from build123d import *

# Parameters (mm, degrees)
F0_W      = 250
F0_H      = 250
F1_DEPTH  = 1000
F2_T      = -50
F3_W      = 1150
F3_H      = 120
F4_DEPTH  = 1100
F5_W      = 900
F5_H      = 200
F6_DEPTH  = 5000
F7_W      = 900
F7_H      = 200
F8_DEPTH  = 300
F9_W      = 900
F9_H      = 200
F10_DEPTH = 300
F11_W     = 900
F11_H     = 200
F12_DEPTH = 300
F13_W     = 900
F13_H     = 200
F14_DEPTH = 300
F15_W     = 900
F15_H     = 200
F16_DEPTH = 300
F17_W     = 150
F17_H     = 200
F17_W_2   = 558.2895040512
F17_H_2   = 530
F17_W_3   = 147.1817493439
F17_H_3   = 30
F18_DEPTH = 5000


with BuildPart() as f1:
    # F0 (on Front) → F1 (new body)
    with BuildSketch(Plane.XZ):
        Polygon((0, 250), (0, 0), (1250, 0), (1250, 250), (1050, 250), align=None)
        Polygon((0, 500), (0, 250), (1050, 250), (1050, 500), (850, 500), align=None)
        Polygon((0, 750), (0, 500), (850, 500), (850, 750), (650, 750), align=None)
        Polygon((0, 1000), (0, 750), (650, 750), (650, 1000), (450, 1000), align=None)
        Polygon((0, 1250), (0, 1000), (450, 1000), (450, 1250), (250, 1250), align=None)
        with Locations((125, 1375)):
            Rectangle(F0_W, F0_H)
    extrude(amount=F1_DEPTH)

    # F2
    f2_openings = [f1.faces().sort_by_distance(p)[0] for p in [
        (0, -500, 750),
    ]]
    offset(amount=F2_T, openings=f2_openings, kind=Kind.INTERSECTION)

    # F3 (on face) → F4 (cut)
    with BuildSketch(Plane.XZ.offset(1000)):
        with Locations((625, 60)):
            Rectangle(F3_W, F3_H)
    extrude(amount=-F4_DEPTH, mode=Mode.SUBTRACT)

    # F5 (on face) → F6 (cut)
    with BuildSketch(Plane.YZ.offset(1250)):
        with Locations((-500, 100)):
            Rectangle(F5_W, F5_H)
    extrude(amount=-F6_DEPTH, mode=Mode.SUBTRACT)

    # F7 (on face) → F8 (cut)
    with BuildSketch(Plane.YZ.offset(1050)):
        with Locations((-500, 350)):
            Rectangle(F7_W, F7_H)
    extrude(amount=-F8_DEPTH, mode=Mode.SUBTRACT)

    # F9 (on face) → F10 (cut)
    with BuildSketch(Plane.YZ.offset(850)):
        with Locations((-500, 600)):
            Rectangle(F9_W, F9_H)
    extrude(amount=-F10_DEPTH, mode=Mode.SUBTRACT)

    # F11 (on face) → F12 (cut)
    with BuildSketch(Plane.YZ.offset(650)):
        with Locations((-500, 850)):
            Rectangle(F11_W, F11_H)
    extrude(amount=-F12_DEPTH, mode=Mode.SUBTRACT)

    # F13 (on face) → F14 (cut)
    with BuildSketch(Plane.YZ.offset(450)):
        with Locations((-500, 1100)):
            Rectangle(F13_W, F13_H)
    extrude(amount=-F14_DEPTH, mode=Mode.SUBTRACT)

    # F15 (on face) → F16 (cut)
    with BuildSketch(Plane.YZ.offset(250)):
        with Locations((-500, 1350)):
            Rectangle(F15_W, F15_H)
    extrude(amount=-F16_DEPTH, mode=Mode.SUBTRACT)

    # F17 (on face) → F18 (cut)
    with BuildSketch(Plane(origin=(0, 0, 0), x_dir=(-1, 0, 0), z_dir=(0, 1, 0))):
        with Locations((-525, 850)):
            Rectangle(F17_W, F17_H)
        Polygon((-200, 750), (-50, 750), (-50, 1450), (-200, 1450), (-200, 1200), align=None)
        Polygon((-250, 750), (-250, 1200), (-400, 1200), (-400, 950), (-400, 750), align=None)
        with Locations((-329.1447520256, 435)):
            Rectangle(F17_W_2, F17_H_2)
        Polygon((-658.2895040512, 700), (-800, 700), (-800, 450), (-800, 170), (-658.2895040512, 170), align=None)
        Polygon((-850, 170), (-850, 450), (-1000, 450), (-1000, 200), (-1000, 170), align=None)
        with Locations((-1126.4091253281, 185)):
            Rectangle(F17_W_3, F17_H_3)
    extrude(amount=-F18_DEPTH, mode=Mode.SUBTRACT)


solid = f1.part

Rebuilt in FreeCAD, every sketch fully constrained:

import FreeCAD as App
import Part
import Sketcher

V = App.Vector


def faces_at(feature, points):
    """Names of the faces that lie closest to the given points."""
    faces = feature.Shape.Faces
    near = lambda p: min(range(len(faces)), key=lambda i: faces[i].distToShape(Part.Vertex(*p))[0])
    return sorted({f"Face{near(p) + 1}" for p in points})

doc = App.newDocument("Part")
body = doc.addObject("PartDesign::Body", "Body")

sketch1 = body.newObject("Sketcher::SketchObject", "Sketch")
sketch1.AttachmentSupport = (doc.getObject("XZ_Plane"), [""])
sketch1.MapMode = "FlatFace"
sketch1.addGeometry(Part.LineSegment(V(0, 0, 0), V(1250, 0, 0)), False)
sketch1.addGeometry(Part.LineSegment(V(1250, 0, 0), V(1250, 250, 0)), False)
sketch1.addGeometry(Part.LineSegment(V(1250, 250, 0), V(1050, 250, 0)), False)
sketch1.addGeometry(Part.LineSegment(V(1050, 250, 0), V(1050, 500, 0)), False)
sketch1.addGeometry(Part.LineSegment(V(1050, 500, 0), V(850, 500, 0)), False)
sketch1.addGeometry(Part.LineSegment(V(850, 500, 0), V(850, 750, 0)), False)
sketch1.addGeometry(Part.LineSegment(V(850, 750, 0), V(650, 750, 0)), False)
sketch1.addGeometry(Part.LineSegment(V(650, 750, 0), V(650, 1000, 0)), False)
sketch1.addGeometry(Part.LineSegment(V(650, 1000, 0), V(450, 1000, 0)), False)
sketch1.addGeometry(Part.LineSegment(V(450, 1000, 0), V(450, 1250, 0)), False)
sketch1.addGeometry(Part.LineSegment(V(450, 1250, 0), V(250, 1250, 0)), False)
sketch1.addGeometry(Part.LineSegment(V(250, 1250, 0), V(250, 1500, 0)), False)
sketch1.addGeometry(Part.LineSegment(V(250, 1500, 0), V(0, 1500, 0)), False)
sketch1.addGeometry(Part.LineSegment(V(0, 1500, 0), V(0, 0, 0)), False)
sketch1.addConstraint(Sketcher.Constraint("Coincident", 0, 2, 1, 1))
sketch1.addConstraint(Sketcher.Constraint("Coincident", 1, 2, 2, 1))
sketch1.addConstraint(Sketcher.Constraint("Coincident", 2, 2, 3, 1))
sketch1.addConstraint(Sketcher.Constraint("Coincident", 3, 2, 4, 1))
sketch1.addConstraint(Sketcher.Constraint("Coincident", 4, 2, 5, 1))
sketch1.addConstraint(Sketcher.Constraint("Coincident", 5, 2, 6, 1))
sketch1.addConstraint(Sketcher.Constraint("Coincident", 6, 2, 7, 1))
sketch1.addConstraint(Sketcher.Constraint("Coincident", 7, 2, 8, 1))
sketch1.addConstraint(Sketcher.Constraint("Coincident", 8, 2, 9, 1))
sketch1.addConstraint(Sketcher.Constraint("Coincident", 9, 2, 10, 1))
sketch1.addConstraint(Sketcher.Constraint("Coincident", 10, 2, 11, 1))
sketch1.addConstraint(Sketcher.Constraint("Coincident", 11, 2, 12, 1))
sketch1.addConstraint(Sketcher.Constraint("Coincident", 12, 2, 13, 1))
sketch1.addConstraint(Sketcher.Constraint("Coincident", 13, 2, 0, 1))
sketch1.addConstraint(Sketcher.Constraint("Horizontal", 0))
sketch1.addConstraint(Sketcher.Constraint("Vertical", 1))
sketch1.addConstraint(Sketcher.Constraint("Horizontal", 2))
sketch1.addConstraint(Sketcher.Constraint("Vertical", 3))
sketch1.addConstraint(Sketcher.Constraint("Horizontal", 4))
sketch1.addConstraint(Sketcher.Constraint("Vertical", 5))
sketch1.addConstraint(Sketcher.Constraint("Horizontal", 6))
sketch1.addConstraint(Sketcher.Constraint("Vertical", 7))
sketch1.addConstraint(Sketcher.Constraint("Horizontal", 8))
sketch1.addConstraint(Sketcher.Constraint("Vertical", 9))
sketch1.addConstraint(Sketcher.Constraint("Horizontal", 10))
sketch1.addConstraint(Sketcher.Constraint("Vertical", 11))
sketch1.addConstraint(Sketcher.Constraint("Horizontal", 12))
sketch1.addConstraint(Sketcher.Constraint("Vertical", 13))
sketch1.addConstraint(Sketcher.Constraint("Coincident", 13, 2, -1, 1))
sketch1.addConstraint(Sketcher.Constraint("Equal", 2, 4))
sketch1.addConstraint(Sketcher.Constraint("Equal", 4, 6))
sketch1.addConstraint(Sketcher.Constraint("Equal", 6, 8))
sketch1.addConstraint(Sketcher.Constraint("Equal", 8, 10))
sketch1.addConstraint(Sketcher.Constraint("Equal", 12, 1))
sketch1.addConstraint(Sketcher.Constraint("Equal", 1, 3))
sketch1.addConstraint(Sketcher.Constraint("Equal", 3, 5))
sketch1.addConstraint(Sketcher.Constraint("Equal", 5, 7))
sketch1.addConstraint(Sketcher.Constraint("Equal", 7, 9))
sketch1.addConstraint(Sketcher.Constraint("Equal", 9, 11))
sketch1.addConstraint(Sketcher.Constraint("DistanceX", 0, 1, 0, 2, 1250.0))
sketch1.addConstraint(Sketcher.Constraint("DistanceX", 2, 2, 2, 1, 200.0))
pad1 = body.newObject("PartDesign::Pad", "Pad")
pad1.Profile = sketch1
pad1.Length = 1000
doc.recompute()

thickness = body.newObject("PartDesign::Thickness", "Thickness")
thickness.Base = (pad1, faces_at(pad1, [(0, -500, 750)]))
thickness.Value = 50
thickness.Reversed = True
thickness.Join = "Intersection"

sketch2 = body.newObject("Sketcher::SketchObject", "Sketch001")
sketch2.AttachmentSupport = (doc.getObject("XZ_Plane"), [""])
sketch2.MapMode = "FlatFace"
sketch2.AttachmentOffset = App.Placement(V(0, 0, 1000), App.Rotation())
sketch2.addGeometry(Part.LineSegment(V(50, 120, 0), V(50, 0, 0)), False)
sketch2.addGeometry(Part.LineSegment(V(50, 0, 0), V(1200, 0, 0)), False)
sketch2.addGeometry(Part.LineSegment(V(1200, 0, 0), V(1200, 120, 0)), False)
sketch2.addGeometry(Part.LineSegment(V(1200, 120, 0), V(50, 120, 0)), False)
sketch2.addConstraint(Sketcher.Constraint("Coincident", 0, 2, 1, 1))
sketch2.addConstraint(Sketcher.Constraint("Coincident", 1, 2, 2, 1))
sketch2.addConstraint(Sketcher.Constraint("Coincident", 2, 2, 3, 1))
sketch2.addConstraint(Sketcher.Constraint("Coincident", 3, 2, 0, 1))
sketch2.addConstraint(Sketcher.Constraint("Vertical", 0))
sketch2.addConstraint(Sketcher.Constraint("Horizontal", 1))
sketch2.addConstraint(Sketcher.Constraint("Vertical", 2))
sketch2.addConstraint(Sketcher.Constraint("Horizontal", 3))
sketch2.addConstraint(Sketcher.Constraint("PointOnObject", 0, 2, -1))
sketch2.addConstraint(Sketcher.Constraint("DistanceX", 1, 1, 1, 2, 1150.0))
sketch2.addConstraint(Sketcher.Constraint("DistanceY", 0, 2, 0, 1, 120.0))
sketch2.addConstraint(Sketcher.Constraint("DistanceX", -1, 1, 0, 2, 50.0))
pocket1 = body.newObject("PartDesign::Pocket", "Pocket")
pocket1.Profile = sketch2
pocket1.Length = 1100

sketch3 = body.newObject("Sketcher::SketchObject", "Sketch002")
sketch3.AttachmentSupport = (doc.getObject("YZ_Plane"), [""])
sketch3.MapMode = "FlatFace"
sketch3.AttachmentOffset = App.Placement(V(0, 0, 1250), App.Rotation())
sketch3.addGeometry(Part.LineSegment(V(-950, 200, 0), V(-950, 0, 0)), False)
sketch3.addGeometry(Part.LineSegment(V(-950, 0, 0), V(-50, 0, 0)), False)
sketch3.addGeometry(Part.LineSegment(V(-50, 0, 0), V(-50, 200, 0)), False)
sketch3.addGeometry(Part.LineSegment(V(-50, 200, 0), V(-950, 200, 0)), False)
sketch3.addConstraint(Sketcher.Constraint("Coincident", 0, 2, 1, 1))
sketch3.addConstraint(Sketcher.Constraint("Coincident", 1, 2, 2, 1))
sketch3.addConstraint(Sketcher.Constraint("Coincident", 2, 2, 3, 1))
sketch3.addConstraint(Sketcher.Constraint("Coincident", 3, 2, 0, 1))
sketch3.addConstraint(Sketcher.Constraint("Vertical", 0))
sketch3.addConstraint(Sketcher.Constraint("Horizontal", 1))
sketch3.addConstraint(Sketcher.Constraint("Vertical", 2))
sketch3.addConstraint(Sketcher.Constraint("Horizontal", 3))
sketch3.addConstraint(Sketcher.Constraint("PointOnObject", 0, 2, -1))
sketch3.addConstraint(Sketcher.Constraint("DistanceX", 1, 1, 1, 2, 900.0))
sketch3.addConstraint(Sketcher.Constraint("DistanceY", 0, 2, 0, 1, 200.0))
sketch3.addConstraint(Sketcher.Constraint("DistanceX", 0, 2, -1, 1, 950.0))
pocket2 = body.newObject("PartDesign::Pocket", "Pocket001")
pocket2.Profile = sketch3
pocket2.Length = 5000

sketch4 = body.newObject("Sketcher::SketchObject", "Sketch003")
sketch4.AttachmentSupport = (doc.getObject("YZ_Plane"), [""])
sketch4.MapMode = "FlatFace"
sketch4.AttachmentOffset = App.Placement(V(0, 0, 1050), App.Rotation())
sketch4.addGeometry(Part.LineSegment(V(-950, 450, 0), V(-950, 250, 0)), False)
sketch4.addGeometry(Part.LineSegment(V(-950, 250, 0), V(-50, 250, 0)), False)
sketch4.addGeometry(Part.LineSegment(V(-50, 250, 0), V(-50, 450, 0)), False)
sketch4.addGeometry(Part.LineSegment(V(-50, 450, 0), V(-950, 450, 0)), False)
sketch4.addConstraint(Sketcher.Constraint("Coincident", 0, 2, 1, 1))
sketch4.addConstraint(Sketcher.Constraint("Coincident", 1, 2, 2, 1))
sketch4.addConstraint(Sketcher.Constraint("Coincident", 2, 2, 3, 1))
sketch4.addConstraint(Sketcher.Constraint("Coincident", 3, 2, 0, 1))
sketch4.addConstraint(Sketcher.Constraint("Vertical", 0))
sketch4.addConstraint(Sketcher.Constraint("Horizontal", 1))
sketch4.addConstraint(Sketcher.Constraint("Vertical", 2))
sketch4.addConstraint(Sketcher.Constraint("Horizontal", 3))
sketch4.addConstraint(Sketcher.Constraint("DistanceX", 1, 1, 1, 2, 900.0))
sketch4.addConstraint(Sketcher.Constraint("DistanceY", 0, 2, 0, 1, 200.0))
sketch4.addConstraint(Sketcher.Constraint("DistanceX", 0, 2, -1, 1, 950.0))
sketch4.addConstraint(Sketcher.Constraint("DistanceY", -1, 1, 0, 2, 250.0))
pocket3 = body.newObject("PartDesign::Pocket", "Pocket002")
pocket3.Profile = sketch4
pocket3.Length = 300

sketch5 = body.newObject("Sketcher::SketchObject", "Sketch004")
sketch5.AttachmentSupport = (doc.getObject("YZ_Plane"), [""])
sketch5.MapMode = "FlatFace"
sketch5.AttachmentOffset = App.Placement(V(0, 0, 850), App.Rotation())
sketch5.addGeometry(Part.LineSegment(V(-950, 700, 0), V(-950, 500, 0)), False)
sketch5.addGeometry(Part.LineSegment(V(-950, 500, 0), V(-50, 500, 0)), False)
sketch5.addGeometry(Part.LineSegment(V(-50, 500, 0), V(-50, 700, 0)), False)
sketch5.addGeometry(Part.LineSegment(V(-50, 700, 0), V(-950, 700, 0)), False)
sketch5.addConstraint(Sketcher.Constraint("Coincident", 0, 2, 1, 1))
sketch5.addConstraint(Sketcher.Constraint("Coincident", 1, 2, 2, 1))
sketch5.addConstraint(Sketcher.Constraint("Coincident", 2, 2, 3, 1))
sketch5.addConstraint(Sketcher.Constraint("Coincident", 3, 2, 0, 1))
sketch5.addConstraint(Sketcher.Constraint("Vertical", 0))
sketch5.addConstraint(Sketcher.Constraint("Horizontal", 1))
sketch5.addConstraint(Sketcher.Constraint("Vertical", 2))
sketch5.addConstraint(Sketcher.Constraint("Horizontal", 3))
sketch5.addConstraint(Sketcher.Constraint("DistanceX", 1, 1, 1, 2, 900.0))
sketch5.addConstraint(Sketcher.Constraint("DistanceY", 0, 2, 0, 1, 200.0))
sketch5.addConstraint(Sketcher.Constraint("DistanceX", 0, 2, -1, 1, 950.0))
sketch5.addConstraint(Sketcher.Constraint("DistanceY", -1, 1, 0, 2, 500.0))
pocket4 = body.newObject("PartDesign::Pocket", "Pocket003")
pocket4.Profile = sketch5
pocket4.Length = 300

sketch6 = body.newObject("Sketcher::SketchObject", "Sketch005")
sketch6.AttachmentSupport = (doc.getObject("YZ_Plane"), [""])
sketch6.MapMode = "FlatFace"
sketch6.AttachmentOffset = App.Placement(V(0, 0, 650), App.Rotation())
sketch6.addGeometry(Part.LineSegment(V(-950, 950, 0), V(-950, 750, 0)), False)
sketch6.addGeometry(Part.LineSegment(V(-950, 750, 0), V(-50, 750, 0)), False)
sketch6.addGeometry(Part.LineSegment(V(-50, 750, 0), V(-50, 950, 0)), False)
sketch6.addGeometry(Part.LineSegment(V(-50, 950, 0), V(-950, 950, 0)), False)
sketch6.addConstraint(Sketcher.Constraint("Coincident", 0, 2, 1, 1))
sketch6.addConstraint(Sketcher.Constraint("Coincident", 1, 2, 2, 1))
sketch6.addConstraint(Sketcher.Constraint("Coincident", 2, 2, 3, 1))
sketch6.addConstraint(Sketcher.Constraint("Coincident", 3, 2, 0, 1))
sketch6.addConstraint(Sketcher.Constraint("Vertical", 0))
sketch6.addConstraint(Sketcher.Constraint("Horizontal", 1))
sketch6.addConstraint(Sketcher.Constraint("Vertical", 2))
sketch6.addConstraint(Sketcher.Constraint("Horizontal", 3))
sketch6.addConstraint(Sketcher.Constraint("DistanceX", 1, 1, 1, 2, 900.0))
sketch6.addConstraint(Sketcher.Constraint("DistanceY", 0, 2, 0, 1, 200.0))
sketch6.addConstraint(Sketcher.Constraint("DistanceX", 0, 2, -1, 1, 950.0))
sketch6.addConstraint(Sketcher.Constraint("DistanceY", -1, 1, 0, 2, 750.0))
pocket5 = body.newObject("PartDesign::Pocket", "Pocket004")
pocket5.Profile = sketch6
pocket5.Length = 300

sketch7 = body.newObject("Sketcher::SketchObject", "Sketch006")
sketch7.AttachmentSupport = (doc.getObject("YZ_Plane"), [""])
sketch7.MapMode = "FlatFace"
sketch7.AttachmentOffset = App.Placement(V(0, 0, 450), App.Rotation())
sketch7.addGeometry(Part.LineSegment(V(-950, 1200, 0), V(-950, 1000, 0)), False)
sketch7.addGeometry(Part.LineSegment(V(-950, 1000, 0), V(-50, 1000, 0)), False)
sketch7.addGeometry(Part.LineSegment(V(-50, 1000, 0), V(-50, 1200, 0)), False)
sketch7.addGeometry(Part.LineSegment(V(-50, 1200, 0), V(-950, 1200, 0)), False)
sketch7.addConstraint(Sketcher.Constraint("Coincident", 0, 2, 1, 1))
sketch7.addConstraint(Sketcher.Constraint("Coincident", 1, 2, 2, 1))
sketch7.addConstraint(Sketcher.Constraint("Coincident", 2, 2, 3, 1))
sketch7.addConstraint(Sketcher.Constraint("Coincident", 3, 2, 0, 1))
sketch7.addConstraint(Sketcher.Constraint("Vertical", 0))
sketch7.addConstraint(Sketcher.Constraint("Horizontal", 1))
sketch7.addConstraint(Sketcher.Constraint("Vertical", 2))
sketch7.addConstraint(Sketcher.Constraint("Horizontal", 3))
sketch7.addConstraint(Sketcher.Constraint("DistanceX", 1, 1, 1, 2, 900.0))
sketch7.addConstraint(Sketcher.Constraint("DistanceY", 0, 2, 0, 1, 200.0))
sketch7.addConstraint(Sketcher.Constraint("DistanceX", 0, 2, -1, 1, 950.0))
sketch7.addConstraint(Sketcher.Constraint("DistanceY", -1, 1, 0, 2, 1000.0))
pocket6 = body.newObject("PartDesign::Pocket", "Pocket005")
pocket6.Profile = sketch7
pocket6.Length = 300

sketch8 = body.newObject("Sketcher::SketchObject", "Sketch007")
sketch8.AttachmentSupport = (doc.getObject("YZ_Plane"), [""])
sketch8.MapMode = "FlatFace"
sketch8.AttachmentOffset = App.Placement(V(0, 0, 250), App.Rotation())
sketch8.addGeometry(Part.LineSegment(V(-950, 1450, 0), V(-950, 1250, 0)), False)
sketch8.addGeometry(Part.LineSegment(V(-950, 1250, 0), V(-50, 1250, 0)), False)
sketch8.addGeometry(Part.LineSegment(V(-50, 1250, 0), V(-50, 1450, 0)), False)
sketch8.addGeometry(Part.LineSegment(V(-50, 1450, 0), V(-950, 1450, 0)), False)
sketch8.addConstraint(Sketcher.Constraint("Coincident", 0, 2, 1, 1))
sketch8.addConstraint(Sketcher.Constraint("Coincident", 1, 2, 2, 1))
sketch8.addConstraint(Sketcher.Constraint("Coincident", 2, 2, 3, 1))
sketch8.addConstraint(Sketcher.Constraint("Coincident", 3, 2, 0, 1))
sketch8.addConstraint(Sketcher.Constraint("Vertical", 0))
sketch8.addConstraint(Sketcher.Constraint("Horizontal", 1))
sketch8.addConstraint(Sketcher.Constraint("Vertical", 2))
sketch8.addConstraint(Sketcher.Constraint("Horizontal", 3))
sketch8.addConstraint(Sketcher.Constraint("DistanceX", 1, 1, 1, 2, 900.0))
sketch8.addConstraint(Sketcher.Constraint("DistanceY", 0, 2, 0, 1, 200.0))
sketch8.addConstraint(Sketcher.Constraint("DistanceX", 0, 2, -1, 1, 950.0))
sketch8.addConstraint(Sketcher.Constraint("DistanceY", -1, 1, 0, 2, 1250.0))
pocket7 = body.newObject("PartDesign::Pocket", "Pocket006")
pocket7.Profile = sketch8
pocket7.Length = 300

sketch9 = body.newObject("Sketcher::SketchObject", "Sketch008")
sketch9.AttachmentSupport = (doc.getObject("XZ_Plane"), [""])
sketch9.MapMode = "FlatFace"
sketch9.addGeometry(Part.LineSegment(V(600, 950, 0), V(600, 750, 0)), False)
sketch9.addGeometry(Part.LineSegment(V(600, 750, 0), V(450, 750, 0)), False)
sketch9.addGeometry(Part.LineSegment(V(450, 750, 0), V(450, 950, 0)), False)
sketch9.addGeometry(Part.LineSegment(V(450, 950, 0), V(600, 950, 0)), False)
sketch9.addGeometry(Part.LineSegment(V(200, 750, 0), V(50, 750, 0)), False)
sketch9.addGeometry(Part.LineSegment(V(50, 750, 0), V(50, 1450, 0)), False)
sketch9.addGeometry(Part.LineSegment(V(50, 1450, 0), V(200, 1450, 0)), False)
sketch9.addGeometry(Part.LineSegment(V(200, 1450, 0), V(200, 750, 0)), False)
sketch9.addGeometry(Part.LineSegment(V(250, 750, 0), V(250, 1200, 0)), False)
sketch9.addGeometry(Part.LineSegment(V(250, 1200, 0), V(400, 1200, 0)), False)
sketch9.addGeometry(Part.LineSegment(V(400, 1200, 0), V(400, 750, 0)), False)
sketch9.addGeometry(Part.LineSegment(V(400, 750, 0), V(250, 750, 0)), False)
sketch9.addGeometry(Part.LineSegment(V(608.289504, 700, 0), V(608.289504, 170, 0)), False)
sketch9.addGeometry(Part.LineSegment(V(608.289504, 170, 0), V(50, 170, 0)), False)
sketch9.addGeometry(Part.LineSegment(V(50, 170, 0), V(50, 700, 0)), False)
sketch9.addGeometry(Part.LineSegment(V(50, 700, 0), V(608.289504, 700, 0)), False)
sketch9.addGeometry(Part.LineSegment(V(658.289504, 700, 0), V(800, 700, 0)), False)
sketch9.addGeometry(Part.LineSegment(V(800, 700, 0), V(800, 170, 0)), False)
sketch9.addGeometry(Part.LineSegment(V(800, 170, 0), V(658.289504, 170, 0)), False)
sketch9.addGeometry(Part.LineSegment(V(658.289504, 170, 0), V(658.289504, 700, 0)), False)
sketch9.addGeometry(Part.LineSegment(V(850, 170, 0), V(850, 450, 0)), False)
sketch9.addGeometry(Part.LineSegment(V(850, 450, 0), V(1000, 450, 0)), False)
sketch9.addGeometry(Part.LineSegment(V(1000, 450, 0), V(1000, 170, 0)), False)
sketch9.addGeometry(Part.LineSegment(V(1000, 170, 0), V(850, 170, 0)), False)
sketch9.addGeometry(Part.LineSegment(V(1200, 200, 0), V(1200, 170, 0)), False)
sketch9.addGeometry(Part.LineSegment(V(1200, 170, 0), V(1052.818251, 170, 0)), False)
sketch9.addGeometry(Part.LineSegment(V(1052.818251, 170, 0), V(1052.818251, 200, 0)), False)
sketch9.addGeometry(Part.LineSegment(V(1052.818251, 200, 0), V(1200, 200, 0)), False)
sketch9.addConstraint(Sketcher.Constraint("Coincident", 0, 2, 1, 1))
sketch9.addConstraint(Sketcher.Constraint("Coincident", 1, 2, 2, 1))
sketch9.addConstraint(Sketcher.Constraint("Coincident", 2, 2, 3, 1))
sketch9.addConstraint(Sketcher.Constraint("Coincident", 3, 2, 0, 1))
sketch9.addConstraint(Sketcher.Constraint("Coincident", 4, 2, 5, 1))
sketch9.addConstraint(Sketcher.Constraint("Coincident", 5, 2, 6, 1))
sketch9.addConstraint(Sketcher.Constraint("Coincident", 6, 2, 7, 1))
sketch9.addConstraint(Sketcher.Constraint("Coincident", 7, 2, 4, 1))
sketch9.addConstraint(Sketcher.Constraint("Coincident", 8, 2, 9, 1))
sketch9.addConstraint(Sketcher.Constraint("Coincident", 9, 2, 10, 1))
sketch9.addConstraint(Sketcher.Constraint("Coincident", 10, 2, 11, 1))
sketch9.addConstraint(Sketcher.Constraint("Coincident", 11, 2, 8, 1))
sketch9.addConstraint(Sketcher.Constraint("Coincident", 12, 2, 13, 1))
sketch9.addConstraint(Sketcher.Constraint("Coincident", 13, 2, 14, 1))
sketch9.addConstraint(Sketcher.Constraint("Coincident", 14, 2, 15, 1))
sketch9.addConstraint(Sketcher.Constraint("Coincident", 15, 2, 12, 1))
sketch9.addConstraint(Sketcher.Constraint("Coincident", 16, 2, 17, 1))
sketch9.addConstraint(Sketcher.Constraint("Coincident", 17, 2, 18, 1))
sketch9.addConstraint(Sketcher.Constraint("Coincident", 18, 2, 19, 1))
sketch9.addConstraint(Sketcher.Constraint("Coincident", 19, 2, 16, 1))
sketch9.addConstraint(Sketcher.Constraint("Coincident", 20, 2, 21, 1))
sketch9.addConstraint(Sketcher.Constraint("Coincident", 21, 2, 22, 1))
sketch9.addConstraint(Sketcher.Constraint("Coincident", 22, 2, 23, 1))
sketch9.addConstraint(Sketcher.Constraint("Coincident", 23, 2, 20, 1))
sketch9.addConstraint(Sketcher.Constraint("Coincident", 24, 2, 25, 1))
sketch9.addConstraint(Sketcher.Constraint("Coincident", 25, 2, 26, 1))
sketch9.addConstraint(Sketcher.Constraint("Coincident", 26, 2, 27, 1))
sketch9.addConstraint(Sketcher.Constraint("Coincident", 27, 2, 24, 1))
sketch9.addConstraint(Sketcher.Constraint("Vertical", 0))
sketch9.addConstraint(Sketcher.Constraint("Horizontal", 1))
sketch9.addConstraint(Sketcher.Constraint("Vertical", 2))
sketch9.addConstraint(Sketcher.Constraint("Horizontal", 3))
sketch9.addConstraint(Sketcher.Constraint("Horizontal", 4))
sketch9.addConstraint(Sketcher.Constraint("Vertical", 5))
sketch9.addConstraint(Sketcher.Constraint("Horizontal", 6))
sketch9.addConstraint(Sketcher.Constraint("Vertical", 7))
sketch9.addConstraint(Sketcher.Constraint("Vertical", 8))
sketch9.addConstraint(Sketcher.Constraint("Horizontal", 9))
sketch9.addConstraint(Sketcher.Constraint("Vertical", 10))
sketch9.addConstraint(Sketcher.Constraint("Horizontal", 11))
sketch9.addConstraint(Sketcher.Constraint("Vertical", 12))
sketch9.addConstraint(Sketcher.Constraint("Horizontal", 13))
sketch9.addConstraint(Sketcher.Constraint("Vertical", 14))
sketch9.addConstraint(Sketcher.Constraint("Horizontal", 15))
sketch9.addConstraint(Sketcher.Constraint("Horizontal", 16))
sketch9.addConstraint(Sketcher.Constraint("Vertical", 17))
sketch9.addConstraint(Sketcher.Constraint("Horizontal", 18))
sketch9.addConstraint(Sketcher.Constraint("Vertical", 19))
sketch9.addConstraint(Sketcher.Constraint("Vertical", 20))
sketch9.addConstraint(Sketcher.Constraint("Horizontal", 21))
sketch9.addConstraint(Sketcher.Constraint("Vertical", 22))
sketch9.addConstraint(Sketcher.Constraint("Horizontal", 23))
sketch9.addConstraint(Sketcher.Constraint("Vertical", 24))
sketch9.addConstraint(Sketcher.Constraint("Horizontal", 25))
sketch9.addConstraint(Sketcher.Constraint("Vertical", 26))
sketch9.addConstraint(Sketcher.Constraint("Horizontal", 27))
sketch9.addConstraint(Sketcher.Constraint("Horizontal", 1, 2, 4, 2))
sketch9.addConstraint(Sketcher.Constraint("Horizontal", 7, 2, 10, 2))
sketch9.addConstraint(Sketcher.Constraint("Horizontal", 15, 2, 16, 2))
sketch9.addConstraint(Sketcher.Constraint("Horizontal", 13, 2, 17, 2))
sketch9.addConstraint(Sketcher.Constraint("Horizontal", 18, 2, 22, 2))
sketch9.addConstraint(Sketcher.Constraint("Horizontal", 23, 2, 24, 2))
sketch9.addConstraint(Sketcher.Constraint("Vertical", 5, 2, 13, 2))
sketch9.addConstraint(Sketcher.Constraint("Equal", 3, 4))
sketch9.addConstraint(Sketcher.Constraint("Equal", 6, 9))
sketch9.addConstraint(Sketcher.Constraint("Equal", 11, 21))
sketch9.addConstraint(Sketcher.Constraint("DistanceX", 1, 2, 1, 1, 150.0))
sketch9.addConstraint(Sketcher.Constraint("DistanceY", 0, 2, 0, 1, 200.0))
sketch9.addConstraint(Sketcher.Constraint("DistanceY", 5, 1, 5, 2, 700.0))
sketch9.addConstraint(Sketcher.Constraint("DistanceY", 8, 1, 8, 2, 450.0))
sketch9.addConstraint(Sketcher.Constraint("DistanceY", 12, 2, 12, 1, 530.0))
sketch9.addConstraint(Sketcher.Constraint("DistanceY", 20, 1, 20, 2, 280.0))
sketch9.addConstraint(Sketcher.Constraint("DistanceY", 24, 2, 24, 1, 30.0))
sketch9.addConstraint(Sketcher.Constraint("DistanceX", -1, 1, 0, 2, 600.0))
sketch9.addConstraint(Sketcher.Constraint("DistanceY", -1, 1, 0, 2, 750.0))
sketch9.addConstraint(Sketcher.Constraint("DistanceX", -1, 1, 4, 2, 50.0))
sketch9.addConstraint(Sketcher.Constraint("DistanceX", -1, 1, 8, 2, 250.0))
sketch9.addConstraint(Sketcher.Constraint("DistanceY", -1, 1, 12, 2, 170.0))
sketch9.addConstraint(Sketcher.Constraint("DistanceX", -1, 1, 16, 2, 800.0))
sketch9.addConstraint(Sketcher.Constraint("DistanceX", -1, 1, 20, 2, 850.0))
sketch9.addConstraint(Sketcher.Constraint("DistanceX", -1, 1, 24, 2, 1200.0))
sketch9.addConstraint(Sketcher.Constraint("DistanceX", 12, 2, 18, 2, 50.0))
sketch9.addConstraint(Sketcher.Constraint("DistanceX", 25, 2, 25, 1, 147.181749))
sketch9.addConstraint(Sketcher.Constraint("DistanceX", 13, 2, 13, 1, 558.289504))
pocket8 = body.newObject("PartDesign::Pocket", "Pocket007")
pocket8.Profile = sketch9
pocket8.Length = 5000
pocket8.Reversed = True

doc.recompute()
